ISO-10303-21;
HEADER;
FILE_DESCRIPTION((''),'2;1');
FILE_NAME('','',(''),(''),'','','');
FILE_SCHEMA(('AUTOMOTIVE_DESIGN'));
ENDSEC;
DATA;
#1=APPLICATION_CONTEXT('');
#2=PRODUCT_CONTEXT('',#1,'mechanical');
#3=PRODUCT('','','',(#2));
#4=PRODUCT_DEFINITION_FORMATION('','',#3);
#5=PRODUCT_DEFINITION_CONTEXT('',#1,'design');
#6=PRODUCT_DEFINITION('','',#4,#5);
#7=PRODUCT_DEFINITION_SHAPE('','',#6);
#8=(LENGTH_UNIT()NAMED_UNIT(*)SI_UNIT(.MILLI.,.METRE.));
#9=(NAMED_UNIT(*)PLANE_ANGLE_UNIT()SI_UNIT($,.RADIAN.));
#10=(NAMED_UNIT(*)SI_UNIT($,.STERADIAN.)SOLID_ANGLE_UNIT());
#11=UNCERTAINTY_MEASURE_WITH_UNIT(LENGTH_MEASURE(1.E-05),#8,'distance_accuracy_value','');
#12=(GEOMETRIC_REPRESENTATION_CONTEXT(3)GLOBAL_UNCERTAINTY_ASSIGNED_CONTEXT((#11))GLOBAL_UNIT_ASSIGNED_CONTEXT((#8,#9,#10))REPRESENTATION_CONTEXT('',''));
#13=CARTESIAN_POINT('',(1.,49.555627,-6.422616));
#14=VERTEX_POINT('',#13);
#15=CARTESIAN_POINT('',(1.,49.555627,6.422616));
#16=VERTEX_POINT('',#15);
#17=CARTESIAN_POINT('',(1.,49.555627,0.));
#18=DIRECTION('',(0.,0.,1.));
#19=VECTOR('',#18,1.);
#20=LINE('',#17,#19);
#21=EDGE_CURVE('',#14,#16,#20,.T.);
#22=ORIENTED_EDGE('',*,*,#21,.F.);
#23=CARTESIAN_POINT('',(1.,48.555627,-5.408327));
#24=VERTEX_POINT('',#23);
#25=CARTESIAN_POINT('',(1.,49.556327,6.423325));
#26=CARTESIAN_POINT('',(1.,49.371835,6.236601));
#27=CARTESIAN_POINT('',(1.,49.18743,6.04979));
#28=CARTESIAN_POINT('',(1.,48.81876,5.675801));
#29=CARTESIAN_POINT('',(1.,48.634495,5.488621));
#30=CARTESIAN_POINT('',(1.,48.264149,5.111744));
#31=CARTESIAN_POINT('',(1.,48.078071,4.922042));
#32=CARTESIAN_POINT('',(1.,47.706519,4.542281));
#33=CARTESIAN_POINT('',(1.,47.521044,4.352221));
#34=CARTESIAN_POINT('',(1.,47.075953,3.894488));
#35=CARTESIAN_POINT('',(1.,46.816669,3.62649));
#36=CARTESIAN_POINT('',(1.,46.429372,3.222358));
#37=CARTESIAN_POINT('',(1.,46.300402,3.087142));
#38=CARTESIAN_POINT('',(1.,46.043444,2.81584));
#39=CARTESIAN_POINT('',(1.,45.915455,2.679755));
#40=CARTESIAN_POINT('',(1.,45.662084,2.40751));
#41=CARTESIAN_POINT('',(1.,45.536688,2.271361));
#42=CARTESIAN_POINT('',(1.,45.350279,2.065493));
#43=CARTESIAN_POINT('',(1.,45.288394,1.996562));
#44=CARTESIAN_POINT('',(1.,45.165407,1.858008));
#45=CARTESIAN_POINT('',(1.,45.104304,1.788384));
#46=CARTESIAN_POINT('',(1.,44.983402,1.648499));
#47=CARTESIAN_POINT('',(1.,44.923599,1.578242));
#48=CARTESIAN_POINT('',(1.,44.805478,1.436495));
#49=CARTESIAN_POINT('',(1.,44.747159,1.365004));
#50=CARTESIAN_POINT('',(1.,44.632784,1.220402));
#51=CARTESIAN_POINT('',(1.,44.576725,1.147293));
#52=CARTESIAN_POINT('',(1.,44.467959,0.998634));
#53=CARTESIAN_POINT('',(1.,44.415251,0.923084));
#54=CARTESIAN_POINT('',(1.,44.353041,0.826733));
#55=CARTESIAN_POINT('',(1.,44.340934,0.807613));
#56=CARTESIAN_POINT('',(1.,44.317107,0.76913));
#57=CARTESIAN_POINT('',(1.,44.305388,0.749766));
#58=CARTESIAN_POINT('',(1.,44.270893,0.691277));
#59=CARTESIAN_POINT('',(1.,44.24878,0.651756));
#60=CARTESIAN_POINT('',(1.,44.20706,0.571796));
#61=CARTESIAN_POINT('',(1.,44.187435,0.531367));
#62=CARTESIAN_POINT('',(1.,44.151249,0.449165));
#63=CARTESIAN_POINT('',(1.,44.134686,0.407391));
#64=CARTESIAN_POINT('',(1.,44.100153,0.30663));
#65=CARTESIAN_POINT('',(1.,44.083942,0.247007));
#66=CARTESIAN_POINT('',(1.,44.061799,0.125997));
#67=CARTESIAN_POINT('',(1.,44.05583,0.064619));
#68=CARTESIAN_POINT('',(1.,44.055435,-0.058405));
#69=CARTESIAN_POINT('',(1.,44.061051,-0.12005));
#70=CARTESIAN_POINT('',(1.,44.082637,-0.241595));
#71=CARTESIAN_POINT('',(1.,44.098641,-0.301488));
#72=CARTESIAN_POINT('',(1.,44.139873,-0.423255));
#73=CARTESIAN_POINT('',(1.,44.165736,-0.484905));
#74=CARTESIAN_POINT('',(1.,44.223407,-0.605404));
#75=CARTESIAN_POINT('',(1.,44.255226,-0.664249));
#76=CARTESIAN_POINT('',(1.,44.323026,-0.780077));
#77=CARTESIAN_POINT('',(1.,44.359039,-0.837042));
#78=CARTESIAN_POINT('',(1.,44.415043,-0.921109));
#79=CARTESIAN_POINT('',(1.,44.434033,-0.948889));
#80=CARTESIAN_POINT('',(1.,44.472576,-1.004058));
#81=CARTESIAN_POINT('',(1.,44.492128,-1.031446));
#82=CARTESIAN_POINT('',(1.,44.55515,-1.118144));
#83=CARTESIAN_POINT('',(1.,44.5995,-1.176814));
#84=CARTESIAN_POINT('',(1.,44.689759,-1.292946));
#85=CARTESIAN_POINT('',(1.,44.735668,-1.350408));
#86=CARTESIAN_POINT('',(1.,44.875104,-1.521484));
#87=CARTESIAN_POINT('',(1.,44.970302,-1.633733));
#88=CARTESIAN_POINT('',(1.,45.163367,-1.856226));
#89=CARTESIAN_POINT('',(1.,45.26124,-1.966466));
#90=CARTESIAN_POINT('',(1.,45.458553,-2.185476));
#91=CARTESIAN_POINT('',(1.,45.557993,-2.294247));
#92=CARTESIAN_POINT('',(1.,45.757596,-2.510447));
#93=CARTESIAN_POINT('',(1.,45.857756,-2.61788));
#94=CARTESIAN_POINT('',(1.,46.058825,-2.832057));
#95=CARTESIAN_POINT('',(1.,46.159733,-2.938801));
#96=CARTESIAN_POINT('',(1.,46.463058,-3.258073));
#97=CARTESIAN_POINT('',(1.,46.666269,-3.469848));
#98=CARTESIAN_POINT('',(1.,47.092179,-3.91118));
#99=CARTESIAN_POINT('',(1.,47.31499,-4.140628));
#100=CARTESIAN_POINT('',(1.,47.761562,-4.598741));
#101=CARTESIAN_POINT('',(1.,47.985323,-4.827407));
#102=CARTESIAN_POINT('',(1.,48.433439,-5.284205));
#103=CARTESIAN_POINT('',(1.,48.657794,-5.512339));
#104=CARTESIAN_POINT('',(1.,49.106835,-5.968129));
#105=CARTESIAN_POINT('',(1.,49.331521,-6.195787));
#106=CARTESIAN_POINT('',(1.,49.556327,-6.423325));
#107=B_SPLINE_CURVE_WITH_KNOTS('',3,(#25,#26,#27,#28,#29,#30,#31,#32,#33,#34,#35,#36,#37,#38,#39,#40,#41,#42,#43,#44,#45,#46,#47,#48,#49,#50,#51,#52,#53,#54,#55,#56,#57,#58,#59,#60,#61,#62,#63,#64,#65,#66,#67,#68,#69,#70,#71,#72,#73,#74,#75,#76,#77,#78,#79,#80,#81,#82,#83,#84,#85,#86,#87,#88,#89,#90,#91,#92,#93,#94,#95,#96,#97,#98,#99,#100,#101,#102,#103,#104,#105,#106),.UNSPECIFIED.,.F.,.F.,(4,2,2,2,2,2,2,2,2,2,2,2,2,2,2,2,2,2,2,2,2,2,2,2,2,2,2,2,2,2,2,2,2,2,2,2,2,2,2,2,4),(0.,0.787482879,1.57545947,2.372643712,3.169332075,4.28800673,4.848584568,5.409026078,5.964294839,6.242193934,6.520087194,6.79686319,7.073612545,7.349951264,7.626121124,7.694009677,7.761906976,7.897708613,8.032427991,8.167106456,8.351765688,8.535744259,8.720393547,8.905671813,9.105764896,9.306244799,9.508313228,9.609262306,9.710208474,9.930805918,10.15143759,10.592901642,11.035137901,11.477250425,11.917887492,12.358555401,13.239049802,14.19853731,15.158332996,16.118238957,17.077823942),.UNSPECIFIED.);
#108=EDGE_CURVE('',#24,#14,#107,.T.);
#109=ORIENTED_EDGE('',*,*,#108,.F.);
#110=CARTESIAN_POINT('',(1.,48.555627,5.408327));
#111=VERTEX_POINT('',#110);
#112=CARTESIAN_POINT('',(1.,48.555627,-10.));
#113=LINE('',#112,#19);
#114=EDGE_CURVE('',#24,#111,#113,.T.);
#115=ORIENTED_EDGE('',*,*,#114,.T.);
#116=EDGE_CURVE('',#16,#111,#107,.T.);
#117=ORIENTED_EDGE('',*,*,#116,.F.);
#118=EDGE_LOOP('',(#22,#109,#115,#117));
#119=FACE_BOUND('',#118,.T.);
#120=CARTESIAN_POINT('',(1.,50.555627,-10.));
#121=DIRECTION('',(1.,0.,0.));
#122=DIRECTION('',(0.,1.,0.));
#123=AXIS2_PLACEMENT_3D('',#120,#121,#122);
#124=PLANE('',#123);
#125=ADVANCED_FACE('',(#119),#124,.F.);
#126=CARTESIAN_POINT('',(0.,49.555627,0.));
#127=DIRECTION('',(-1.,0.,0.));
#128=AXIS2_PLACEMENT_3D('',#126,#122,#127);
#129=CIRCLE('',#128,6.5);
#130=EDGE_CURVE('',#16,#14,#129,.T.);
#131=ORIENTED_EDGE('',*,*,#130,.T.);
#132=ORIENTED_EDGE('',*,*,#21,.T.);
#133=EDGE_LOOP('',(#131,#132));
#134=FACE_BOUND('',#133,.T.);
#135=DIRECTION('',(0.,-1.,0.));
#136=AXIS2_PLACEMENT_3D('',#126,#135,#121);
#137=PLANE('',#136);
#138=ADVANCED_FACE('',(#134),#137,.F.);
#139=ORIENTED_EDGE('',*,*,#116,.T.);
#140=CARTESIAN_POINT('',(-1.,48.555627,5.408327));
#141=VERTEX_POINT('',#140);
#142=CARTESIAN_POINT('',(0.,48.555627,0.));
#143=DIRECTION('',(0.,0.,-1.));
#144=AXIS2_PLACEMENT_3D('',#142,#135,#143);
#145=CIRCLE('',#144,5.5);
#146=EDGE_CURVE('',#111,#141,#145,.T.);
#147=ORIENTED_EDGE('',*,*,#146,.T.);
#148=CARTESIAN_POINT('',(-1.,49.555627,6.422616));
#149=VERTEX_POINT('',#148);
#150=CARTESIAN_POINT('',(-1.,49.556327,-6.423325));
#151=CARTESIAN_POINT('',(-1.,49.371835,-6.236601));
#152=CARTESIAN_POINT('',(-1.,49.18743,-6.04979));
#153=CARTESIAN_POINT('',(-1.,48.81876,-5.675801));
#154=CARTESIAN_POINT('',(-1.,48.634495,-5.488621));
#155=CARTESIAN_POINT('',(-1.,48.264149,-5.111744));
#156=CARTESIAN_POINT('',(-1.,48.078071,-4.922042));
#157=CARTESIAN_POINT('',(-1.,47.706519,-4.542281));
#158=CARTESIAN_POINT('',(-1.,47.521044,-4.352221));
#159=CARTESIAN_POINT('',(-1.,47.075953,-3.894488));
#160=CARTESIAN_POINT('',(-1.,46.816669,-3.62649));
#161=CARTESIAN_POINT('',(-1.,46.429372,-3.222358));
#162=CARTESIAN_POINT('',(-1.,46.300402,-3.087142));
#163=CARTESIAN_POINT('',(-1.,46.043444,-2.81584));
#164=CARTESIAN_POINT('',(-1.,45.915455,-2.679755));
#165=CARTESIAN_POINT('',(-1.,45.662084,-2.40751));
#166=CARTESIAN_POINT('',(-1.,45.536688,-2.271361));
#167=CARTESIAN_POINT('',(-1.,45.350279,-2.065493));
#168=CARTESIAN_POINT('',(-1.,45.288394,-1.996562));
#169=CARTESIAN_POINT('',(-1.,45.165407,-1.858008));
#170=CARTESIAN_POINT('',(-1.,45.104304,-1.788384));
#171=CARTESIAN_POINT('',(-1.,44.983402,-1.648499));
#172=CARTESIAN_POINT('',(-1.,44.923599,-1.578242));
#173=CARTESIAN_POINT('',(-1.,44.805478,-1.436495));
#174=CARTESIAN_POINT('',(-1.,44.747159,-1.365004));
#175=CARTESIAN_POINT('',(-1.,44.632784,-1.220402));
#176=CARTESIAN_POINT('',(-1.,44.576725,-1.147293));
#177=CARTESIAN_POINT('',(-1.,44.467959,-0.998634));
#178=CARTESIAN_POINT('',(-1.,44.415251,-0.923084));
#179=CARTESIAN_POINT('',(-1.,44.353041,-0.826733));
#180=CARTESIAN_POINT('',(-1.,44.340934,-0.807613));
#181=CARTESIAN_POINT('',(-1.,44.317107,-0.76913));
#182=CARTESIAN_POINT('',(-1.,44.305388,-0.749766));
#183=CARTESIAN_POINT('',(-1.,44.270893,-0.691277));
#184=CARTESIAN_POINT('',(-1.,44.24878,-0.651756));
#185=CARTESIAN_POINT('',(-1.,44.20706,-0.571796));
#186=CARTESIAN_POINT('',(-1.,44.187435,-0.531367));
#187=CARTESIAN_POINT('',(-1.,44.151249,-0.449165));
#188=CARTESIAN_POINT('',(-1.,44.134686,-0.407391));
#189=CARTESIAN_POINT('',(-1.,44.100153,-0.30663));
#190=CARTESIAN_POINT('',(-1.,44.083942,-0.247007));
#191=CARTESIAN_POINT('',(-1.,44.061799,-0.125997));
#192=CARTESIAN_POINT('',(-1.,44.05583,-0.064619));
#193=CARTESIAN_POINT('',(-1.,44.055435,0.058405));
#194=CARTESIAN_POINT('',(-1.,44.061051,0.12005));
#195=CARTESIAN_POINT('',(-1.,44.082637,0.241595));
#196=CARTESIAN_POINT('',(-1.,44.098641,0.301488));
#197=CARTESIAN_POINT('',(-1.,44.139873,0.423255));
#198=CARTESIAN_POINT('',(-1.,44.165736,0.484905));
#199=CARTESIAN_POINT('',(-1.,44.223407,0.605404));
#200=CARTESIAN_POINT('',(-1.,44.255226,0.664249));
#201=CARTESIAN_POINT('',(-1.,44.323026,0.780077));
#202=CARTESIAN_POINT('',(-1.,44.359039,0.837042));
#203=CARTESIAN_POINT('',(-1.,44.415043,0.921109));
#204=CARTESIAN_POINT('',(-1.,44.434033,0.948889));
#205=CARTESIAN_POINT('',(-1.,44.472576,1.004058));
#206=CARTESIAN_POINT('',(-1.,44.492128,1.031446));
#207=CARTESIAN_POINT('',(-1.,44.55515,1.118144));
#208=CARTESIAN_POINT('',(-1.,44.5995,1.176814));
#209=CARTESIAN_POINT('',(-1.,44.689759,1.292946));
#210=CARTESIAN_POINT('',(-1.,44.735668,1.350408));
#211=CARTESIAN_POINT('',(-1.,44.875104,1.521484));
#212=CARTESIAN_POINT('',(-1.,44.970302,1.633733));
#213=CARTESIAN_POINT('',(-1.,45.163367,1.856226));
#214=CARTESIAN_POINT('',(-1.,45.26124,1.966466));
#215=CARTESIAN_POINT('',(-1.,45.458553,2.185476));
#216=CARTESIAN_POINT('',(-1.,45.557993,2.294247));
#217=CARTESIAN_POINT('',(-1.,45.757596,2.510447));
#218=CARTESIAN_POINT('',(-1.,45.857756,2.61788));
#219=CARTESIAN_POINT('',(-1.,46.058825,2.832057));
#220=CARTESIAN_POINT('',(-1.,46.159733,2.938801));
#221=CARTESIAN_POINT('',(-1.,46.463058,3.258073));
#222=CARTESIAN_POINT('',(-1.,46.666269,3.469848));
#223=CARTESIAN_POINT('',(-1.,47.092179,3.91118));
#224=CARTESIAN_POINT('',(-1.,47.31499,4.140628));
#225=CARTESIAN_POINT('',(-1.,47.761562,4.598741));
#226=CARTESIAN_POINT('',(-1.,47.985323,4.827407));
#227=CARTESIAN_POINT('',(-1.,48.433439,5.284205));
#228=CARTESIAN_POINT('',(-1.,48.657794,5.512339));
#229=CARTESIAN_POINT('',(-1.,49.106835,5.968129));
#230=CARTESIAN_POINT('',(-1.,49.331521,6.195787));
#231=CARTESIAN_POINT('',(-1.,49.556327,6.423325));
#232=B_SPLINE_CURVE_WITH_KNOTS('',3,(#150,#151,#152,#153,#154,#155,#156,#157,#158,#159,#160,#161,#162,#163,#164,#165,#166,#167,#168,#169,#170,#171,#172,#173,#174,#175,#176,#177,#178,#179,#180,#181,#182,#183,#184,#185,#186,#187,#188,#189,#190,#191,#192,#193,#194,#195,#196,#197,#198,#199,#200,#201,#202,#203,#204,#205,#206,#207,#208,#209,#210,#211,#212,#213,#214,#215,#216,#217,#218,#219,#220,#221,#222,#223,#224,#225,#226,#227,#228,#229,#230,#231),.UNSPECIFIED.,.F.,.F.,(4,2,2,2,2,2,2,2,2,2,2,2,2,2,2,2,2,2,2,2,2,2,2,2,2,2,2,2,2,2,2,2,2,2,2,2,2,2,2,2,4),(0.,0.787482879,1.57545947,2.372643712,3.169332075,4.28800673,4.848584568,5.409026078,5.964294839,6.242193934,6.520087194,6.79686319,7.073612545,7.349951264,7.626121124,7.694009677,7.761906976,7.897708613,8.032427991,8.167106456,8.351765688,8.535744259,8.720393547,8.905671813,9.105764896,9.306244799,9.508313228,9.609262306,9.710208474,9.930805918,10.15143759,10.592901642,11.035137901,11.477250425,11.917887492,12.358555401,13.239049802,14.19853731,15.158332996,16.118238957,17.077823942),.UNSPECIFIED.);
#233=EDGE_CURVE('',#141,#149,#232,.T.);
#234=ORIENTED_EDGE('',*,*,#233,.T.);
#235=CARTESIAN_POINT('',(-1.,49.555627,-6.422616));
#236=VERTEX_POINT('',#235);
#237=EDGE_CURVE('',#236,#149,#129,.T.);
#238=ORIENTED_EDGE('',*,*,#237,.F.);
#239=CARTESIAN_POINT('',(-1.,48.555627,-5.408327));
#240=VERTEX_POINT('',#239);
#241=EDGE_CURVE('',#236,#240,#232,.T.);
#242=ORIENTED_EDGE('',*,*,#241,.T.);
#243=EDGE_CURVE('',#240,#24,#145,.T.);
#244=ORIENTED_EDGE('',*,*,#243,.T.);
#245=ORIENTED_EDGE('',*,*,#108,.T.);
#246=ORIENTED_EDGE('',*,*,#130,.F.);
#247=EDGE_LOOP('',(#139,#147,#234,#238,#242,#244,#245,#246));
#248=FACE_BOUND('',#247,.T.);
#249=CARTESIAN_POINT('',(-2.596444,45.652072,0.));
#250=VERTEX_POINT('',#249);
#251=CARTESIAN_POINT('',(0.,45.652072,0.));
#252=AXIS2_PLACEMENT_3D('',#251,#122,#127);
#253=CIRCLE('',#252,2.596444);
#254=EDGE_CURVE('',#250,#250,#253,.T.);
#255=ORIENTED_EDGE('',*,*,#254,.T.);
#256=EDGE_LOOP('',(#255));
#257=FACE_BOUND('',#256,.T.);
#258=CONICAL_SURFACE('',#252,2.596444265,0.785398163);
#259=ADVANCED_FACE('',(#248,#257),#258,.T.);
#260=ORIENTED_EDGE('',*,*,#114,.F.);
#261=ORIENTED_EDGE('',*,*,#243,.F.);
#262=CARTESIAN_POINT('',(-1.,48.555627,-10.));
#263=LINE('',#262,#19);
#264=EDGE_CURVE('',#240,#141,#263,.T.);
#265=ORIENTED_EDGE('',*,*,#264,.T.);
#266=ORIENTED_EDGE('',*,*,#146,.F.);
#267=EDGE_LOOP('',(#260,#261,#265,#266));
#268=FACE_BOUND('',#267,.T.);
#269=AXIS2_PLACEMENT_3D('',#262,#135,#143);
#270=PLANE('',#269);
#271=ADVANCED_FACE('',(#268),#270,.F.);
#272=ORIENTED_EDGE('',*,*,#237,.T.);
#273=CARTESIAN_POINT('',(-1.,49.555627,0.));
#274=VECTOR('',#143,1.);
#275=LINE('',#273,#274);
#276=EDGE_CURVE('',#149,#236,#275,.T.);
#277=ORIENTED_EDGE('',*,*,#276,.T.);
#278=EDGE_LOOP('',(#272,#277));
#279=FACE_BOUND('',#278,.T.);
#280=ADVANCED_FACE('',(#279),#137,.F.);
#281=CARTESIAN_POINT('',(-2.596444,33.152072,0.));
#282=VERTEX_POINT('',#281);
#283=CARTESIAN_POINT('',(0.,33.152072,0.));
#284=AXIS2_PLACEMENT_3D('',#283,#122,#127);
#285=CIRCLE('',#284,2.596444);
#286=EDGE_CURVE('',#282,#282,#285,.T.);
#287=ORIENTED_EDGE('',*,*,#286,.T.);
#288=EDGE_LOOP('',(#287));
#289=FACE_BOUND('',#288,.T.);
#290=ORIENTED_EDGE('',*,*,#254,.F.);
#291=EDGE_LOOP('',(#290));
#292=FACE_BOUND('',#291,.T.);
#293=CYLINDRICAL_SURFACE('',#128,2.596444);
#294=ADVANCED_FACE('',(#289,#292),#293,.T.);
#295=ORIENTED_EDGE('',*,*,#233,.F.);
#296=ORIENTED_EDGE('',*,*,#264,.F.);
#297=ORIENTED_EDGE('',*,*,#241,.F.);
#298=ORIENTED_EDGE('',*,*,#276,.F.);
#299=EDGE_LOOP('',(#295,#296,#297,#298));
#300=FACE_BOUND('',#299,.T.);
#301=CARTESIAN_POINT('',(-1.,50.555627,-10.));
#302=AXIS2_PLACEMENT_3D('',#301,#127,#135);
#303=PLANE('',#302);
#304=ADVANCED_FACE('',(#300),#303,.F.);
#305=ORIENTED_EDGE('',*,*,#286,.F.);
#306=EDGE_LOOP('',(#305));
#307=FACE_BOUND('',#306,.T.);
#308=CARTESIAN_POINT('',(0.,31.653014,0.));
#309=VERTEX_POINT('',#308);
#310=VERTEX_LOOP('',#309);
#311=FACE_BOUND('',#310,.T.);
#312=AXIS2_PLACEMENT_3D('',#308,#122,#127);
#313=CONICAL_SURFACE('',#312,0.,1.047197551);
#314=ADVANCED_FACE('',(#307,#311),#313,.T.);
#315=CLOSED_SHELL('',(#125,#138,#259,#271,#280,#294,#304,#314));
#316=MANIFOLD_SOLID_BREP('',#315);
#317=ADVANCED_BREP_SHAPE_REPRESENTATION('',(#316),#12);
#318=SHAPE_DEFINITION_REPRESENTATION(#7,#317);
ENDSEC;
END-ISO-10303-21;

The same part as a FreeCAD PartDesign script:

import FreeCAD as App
import Part
import Sketcher
Q = App.Units.Quantity

doc = App.newDocument("Part")
body = doc.addObject("PartDesign::Body", "Body")

sketch1 = doc.addObject("Sketcher::SketchObject", "Sketch")
body.addObject(sketch1)
sketch1.AttachmentSupport = (doc.XY_Plane, [""])
sketch1.MapMode = "FlatFace"
sketch1.addGeometry([
    Part.LineSegment(App.Vector(6.5, 49.6, 0), App.Vector(0, 49.6, 0)),
    Part.LineSegment(App.Vector(0, 49.6, 0), App.Vector(0, 31.7, 0)),
    Part.LineSegment(App.Vector(0, 31.7, 0), App.Vector(2.6, 33.2, 0)),
    Part.LineSegment(App.Vector(2.6, 33.2, 0), App.Vector(2.6, 45.7, 0)),
    Part.LineSegment(App.Vector(2.6, 45.7, 0), App.Vector(6.5, 49.6, 0)),
], False)
sketch1.addConstraint([
    Sketcher.Constraint("Coincident", 0, 2, 1, 1),
    Sketcher.Constraint("Coincident", 1, 2, 2, 1),
    Sketcher.Constraint("Coincident", 2, 2, 3, 1),
    Sketcher.Constraint("Coincident", 3, 2, 4, 1),
    Sketcher.Constraint("Coincident", 4, 2, 0, 1),
    Sketcher.Constraint("Horizontal", 0),
    Sketcher.Constraint("Vertical", 1),
    Sketcher.Constraint("Vertical", 3),
    Sketcher.Constraint("PointOnObject", 0, 2, -2),
    Sketcher.Constraint("Angle", 2, Q("30 deg")),
    Sketcher.Constraint("Angle", 4, Q("45 deg")),
    Sketcher.Constraint("DistanceX", 0, 2, 0, 1, Q("6.5 mm")),
    Sketcher.Constraint("DistanceY", 3, 1, 3, 2, Q("12.5 mm")),
    Sketcher.Constraint("Distance", 4, Q("5.520461 mm")),
    Sketcher.Constraint("DistanceY", -1, 1, 2, 2, Q("33.152072 mm")),
])
revolution = doc.addObject("PartDesign::Revolution", "Revolution")
body.addObject(revolution)
revolution.Profile = sketch1
revolution.ReferenceAxis = (sketch1, ["V_Axis"])
revolution.Angle = 360

sketch2 = doc.addObject("Sketcher::SketchObject", "Sketch001")
body.addObject(sketch2)
sketch2.AttachmentSupport = (doc.XY_Plane, [""])
sketch2.MapMode = "FlatFace"
sketch2.addGeometry([
    Part.LineSegment(App.Vector(-1, 50.6, 0), App.Vector(-1, 48.6, 0)),
    Part.LineSegment(App.Vector(-1, 48.6, 0), App.Vector(1, 48.6, 0)),
    Part.LineSegment(App.Vector(1, 48.6, 0), App.Vector(1, 50.6, 0)),
    Part.LineSegment(App.Vector(1, 50.6, 0), App.Vector(-1, 50.6, 0)),
], False)
sketch2.addConstraint([
    Sketcher.Constraint("Coincident", 0, 2, 1, 1),
    Sketcher.Constraint("Coincident", 1, 2, 2, 1),
    Sketcher.Constraint("Coincident", 2, 2, 3, 1),
    Sketcher.Constraint("Coincident", 3, 2, 0, 1),
    Sketcher.Constraint("Vertical", 0),
    Sketcher.Constraint("Horizontal", 1),
    Sketcher.Constraint("Vertical", 2),
    Sketcher.Constraint("Horizontal", 3),
    Sketcher.Constraint("Equal", 3, 0),
    Sketcher.Constraint("DistanceX", 1, 1, 1, 2, Q("2 mm")),
    Sketcher.Constraint("DistanceX", 0, 2, -1, 1, Q("1 mm")),
    Sketcher.Constraint("DistanceY", -1, 1, 0, 2, Q("48.555627 mm")),
])
pocket1 = doc.addObject("PartDesign::Pocket", "Pocket")
body.addObject(pocket1)
pocket1.Profile = sketch2
pocket1.Length = 20
pocket1.Midplane = True

doc.recompute()
